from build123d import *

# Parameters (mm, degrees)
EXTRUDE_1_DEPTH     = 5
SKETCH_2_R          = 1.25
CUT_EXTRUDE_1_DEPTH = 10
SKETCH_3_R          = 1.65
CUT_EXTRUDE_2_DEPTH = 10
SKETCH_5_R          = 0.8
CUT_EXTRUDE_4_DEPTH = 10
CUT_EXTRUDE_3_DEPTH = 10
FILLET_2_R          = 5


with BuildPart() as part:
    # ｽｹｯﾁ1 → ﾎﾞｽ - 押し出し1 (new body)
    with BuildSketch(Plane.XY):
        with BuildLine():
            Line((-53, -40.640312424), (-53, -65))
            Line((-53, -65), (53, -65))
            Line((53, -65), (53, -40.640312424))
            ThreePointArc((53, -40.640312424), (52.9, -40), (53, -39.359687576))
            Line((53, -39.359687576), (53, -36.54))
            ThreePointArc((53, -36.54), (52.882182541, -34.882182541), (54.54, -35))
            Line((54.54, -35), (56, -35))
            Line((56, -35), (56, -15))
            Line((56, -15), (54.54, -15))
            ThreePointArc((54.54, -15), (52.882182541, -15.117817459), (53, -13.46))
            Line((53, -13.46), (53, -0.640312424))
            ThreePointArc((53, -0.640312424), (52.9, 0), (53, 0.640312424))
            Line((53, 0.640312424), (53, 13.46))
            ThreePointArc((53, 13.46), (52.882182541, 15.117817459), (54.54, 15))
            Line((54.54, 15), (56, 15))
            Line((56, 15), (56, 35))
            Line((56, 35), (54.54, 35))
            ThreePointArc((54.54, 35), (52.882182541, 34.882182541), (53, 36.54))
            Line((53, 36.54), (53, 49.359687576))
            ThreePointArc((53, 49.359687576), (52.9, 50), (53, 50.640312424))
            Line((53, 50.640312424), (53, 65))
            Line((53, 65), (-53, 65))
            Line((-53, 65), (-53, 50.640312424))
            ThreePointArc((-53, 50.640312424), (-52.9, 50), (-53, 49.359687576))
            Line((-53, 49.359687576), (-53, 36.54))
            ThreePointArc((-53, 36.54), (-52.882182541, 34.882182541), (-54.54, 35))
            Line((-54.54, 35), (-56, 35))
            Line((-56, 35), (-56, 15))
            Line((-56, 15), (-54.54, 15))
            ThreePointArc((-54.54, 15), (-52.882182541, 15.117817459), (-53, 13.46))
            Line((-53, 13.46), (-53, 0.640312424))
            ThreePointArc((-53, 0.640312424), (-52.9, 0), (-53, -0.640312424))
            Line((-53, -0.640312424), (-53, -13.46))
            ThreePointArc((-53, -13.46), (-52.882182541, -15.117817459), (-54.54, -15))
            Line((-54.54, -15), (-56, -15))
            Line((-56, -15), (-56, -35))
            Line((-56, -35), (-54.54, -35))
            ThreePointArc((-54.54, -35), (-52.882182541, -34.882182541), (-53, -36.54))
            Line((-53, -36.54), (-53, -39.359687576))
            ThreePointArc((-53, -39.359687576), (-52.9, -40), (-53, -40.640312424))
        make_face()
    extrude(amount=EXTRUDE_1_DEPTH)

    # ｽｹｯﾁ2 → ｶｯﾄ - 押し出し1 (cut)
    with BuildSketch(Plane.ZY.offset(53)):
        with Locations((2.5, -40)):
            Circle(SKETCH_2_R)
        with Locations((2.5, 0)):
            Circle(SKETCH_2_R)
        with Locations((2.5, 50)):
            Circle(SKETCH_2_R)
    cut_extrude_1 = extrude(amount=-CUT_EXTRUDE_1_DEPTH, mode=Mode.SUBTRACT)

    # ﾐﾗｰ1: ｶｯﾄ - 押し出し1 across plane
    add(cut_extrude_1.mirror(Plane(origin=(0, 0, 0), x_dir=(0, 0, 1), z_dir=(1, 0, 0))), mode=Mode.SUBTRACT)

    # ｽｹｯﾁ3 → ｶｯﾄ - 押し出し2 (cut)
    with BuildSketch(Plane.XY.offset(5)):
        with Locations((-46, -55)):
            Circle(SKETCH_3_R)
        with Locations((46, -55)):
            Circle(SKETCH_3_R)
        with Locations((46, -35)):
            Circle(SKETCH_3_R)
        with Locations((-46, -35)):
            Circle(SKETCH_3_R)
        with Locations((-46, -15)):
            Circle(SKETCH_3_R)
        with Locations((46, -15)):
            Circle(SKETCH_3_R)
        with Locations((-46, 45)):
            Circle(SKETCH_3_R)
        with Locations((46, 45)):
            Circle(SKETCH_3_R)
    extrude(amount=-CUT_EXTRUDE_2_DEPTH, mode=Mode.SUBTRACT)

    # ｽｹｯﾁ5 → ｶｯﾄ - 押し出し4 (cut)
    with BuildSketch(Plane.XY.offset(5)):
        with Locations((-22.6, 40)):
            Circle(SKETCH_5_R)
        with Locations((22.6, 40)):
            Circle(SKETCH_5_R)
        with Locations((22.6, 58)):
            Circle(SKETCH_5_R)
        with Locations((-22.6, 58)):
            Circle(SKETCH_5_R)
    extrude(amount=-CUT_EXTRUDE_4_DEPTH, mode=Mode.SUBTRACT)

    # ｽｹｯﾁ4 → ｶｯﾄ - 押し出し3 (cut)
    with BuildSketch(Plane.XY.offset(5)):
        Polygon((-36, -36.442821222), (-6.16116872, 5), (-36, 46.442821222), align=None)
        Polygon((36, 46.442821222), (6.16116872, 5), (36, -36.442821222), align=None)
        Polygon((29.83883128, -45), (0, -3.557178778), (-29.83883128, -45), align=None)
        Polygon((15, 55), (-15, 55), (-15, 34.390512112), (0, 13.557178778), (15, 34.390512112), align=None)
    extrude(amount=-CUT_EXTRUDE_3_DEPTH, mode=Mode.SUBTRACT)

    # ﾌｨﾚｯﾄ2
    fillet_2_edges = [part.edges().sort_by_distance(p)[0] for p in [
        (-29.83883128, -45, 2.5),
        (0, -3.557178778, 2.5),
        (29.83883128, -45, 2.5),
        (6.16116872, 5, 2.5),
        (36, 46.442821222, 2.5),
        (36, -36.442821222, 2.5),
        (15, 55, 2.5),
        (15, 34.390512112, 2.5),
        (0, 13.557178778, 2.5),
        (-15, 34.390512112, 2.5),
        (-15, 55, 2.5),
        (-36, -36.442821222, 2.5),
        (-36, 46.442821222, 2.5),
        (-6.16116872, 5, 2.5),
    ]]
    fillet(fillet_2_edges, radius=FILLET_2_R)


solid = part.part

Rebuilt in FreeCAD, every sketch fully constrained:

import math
import FreeCAD as App
import Part
import Sketcher

V = App.Vector


def edges_at(feature, points):
    """Names of the edges that pass closest to the given points."""
    edges = feature.Shape.Edges
    near = lambda p: min(range(len(edges)), key=lambda i: edges[i].distToShape(Part.Vertex(*p))[0])
    return sorted({f"Edge{near(p) + 1}" for p in points})


def add_polygon(sketch, points):
    """Adds a closed chain of lines whose ends are joined by coincident constraints."""
    first, n = sketch.GeometryCount, len(points)
    for a, b in zip(points, points[1:] + points[:1]):
        sketch.addGeometry(Part.LineSegment(App.Vector(*a, 0), App.Vector(*b, 0)), False)
    for i in range(n):
        sketch.addConstraint(Sketcher.Constraint("Coincident", first + i, 2, first + (i + 1) % n, 1))

doc = App.newDocument("Part")
body = doc.addObject("PartDesign::Body", "Body")

sketch1 = body.newObject("Sketcher::SketchObject", "Sketch")
sketch1.AttachmentSupport = (doc.getObject("XY_Plane"), [""])
sketch1.MapMode = "FlatFace"
sketch1.addGeometry([
    Part.LineSegment(V(-53, -40.6, 0), V(-53, -65, 0)),
    Part.LineSegment(V(-53, -65, 0), V(53, -65, 0)),
    Part.LineSegment(V(53, -65, 0), V(53, -40.6, 0)),
    Part.ArcOfCircle(Part.Circle(V(55, -40, 0), V(0, 0, 1), 2.1), math.radians(162), math.radians(198)),
    Part.LineSegment(V(53, -39.4, 0), V(53, -36.5, 0)),
    Part.ArcOfCircle(Part.Circle(V(53.7, -35.7, 0), V(0, 0, 1), 1.1), math.radians(37), math.radians(233)),
    Part.LineSegment(V(54.5, -35, 0), V(56, -35, 0)),
    Part.LineSegment(V(56, -35, 0), V(56, -15, 0)),
    Part.LineSegment(V(56, -15, 0), V(54.5, -15, 0)),
    Part.ArcOfCircle(Part.Circle(V(53.7, -14.3, 0), V(0, 0, 1), 1.1), math.radians(127), math.radians(323)),
    Part.LineSegment(V(53, -13.5, 0), V(53, -0.6, 0)),
    Part.ArcOfCircle(Part.Circle(V(55, 0, 0), V(0, 0, 1), 2.1), math.radians(162), math.radians(198)),
    Part.LineSegment(V(53, 0.6, 0), V(53, 13.5, 0)),
    Part.ArcOfCircle(Part.Circle(V(53.7, 14.3, 0), V(0, 0, 1), 1.1), math.radians(37), math.radians(233)),
    Part.LineSegment(V(54.5, 15, 0), V(56, 15, 0)),
    Part.LineSegment(V(56, 15, 0), V(56, 35, 0)),
    Part.LineSegment(V(56, 35, 0), V(54.5, 35, 0)),
    Part.ArcOfCircle(Part.Circle(V(53.7, 35.7, 0), V(0, 0, 1), 1.1), math.radians(127), math.radians(323)),
    Part.LineSegment(V(53, 36.5, 0), V(53, 49.4, 0)),
    Part.ArcOfCircle(Part.Circle(V(55, 50, 0), V(0, 0, 1), 2.1), math.radians(162), math.radians(198)),
    Part.LineSegment(V(53, 50.6, 0), V(53, 65, 0)),
    Part.LineSegment(V(53, 65, 0), V(-53, 65, 0)),
    Part.LineSegment(V(-53, 65, 0), V(-53, 50.6, 0)),
    Part.ArcOfCircle(Part.Circle(V(-55, 50, 0), V(0, 0, 1), 2.1), math.radians(-18), math.radians(18)),
    Part.LineSegment(V(-53, 49.4, 0), V(-53, 36.5, 0)),
    Part.ArcOfCircle(Part.Circle(V(-53.7, 35.7, 0), V(0, 0, 1), 1.1), math.radians(-143), math.radians(53)),
    Part.LineSegment(V(-54.5, 35, 0), V(-56, 35, 0)),
    Part.LineSegment(V(-56, 35, 0), V(-56, 15, 0)),
    Part.LineSegment(V(-56, 15, 0), V(-54.5, 15, 0)),
    Part.ArcOfCircle(Part.Circle(V(-53.7, 14.3, 0), V(0, 0, 1), 1.1), math.radians(-53), math.radians(143)),
    Part.LineSegment(V(-53, 13.5, 0), V(-53, 0.6, 0)),
    Part.ArcOfCircle(Part.Circle(V(-55, 0, 0), V(0, 0, 1), 2.1), math.radians(-18), math.radians(18)),
    Part.LineSegment(V(-53, -0.6, 0), V(-53, -13.5, 0)),
    Part.ArcOfCircle(Part.Circle(V(-53.7, -14.3, 0), V(0, 0, 1), 1.1), math.radians(-143), math.radians(53)),
    Part.LineSegment(V(-54.5, -15, 0), V(-56, -15, 0)),
    Part.LineSegment(V(-56, -15, 0), V(-56, -35, 0)),
    Part.LineSegment(V(-56, -35, 0), V(-54.5, -35, 0)),
    Part.ArcOfCircle(Part.Circle(V(-53.7, -35.7, 0), V(0, 0, 1), 1.1), math.radians(-53), math.radians(143)),
    Part.LineSegment(V(-53, -36.5, 0), V(-53, -39.4, 0)),
    Part.ArcOfCircle(Part.Circle(V(-55, -40, 0), V(0, 0, 1), 2.1), math.radians(-18), math.radians(18)),
], False)
sketch1.addConstraint([
    Sketcher.Constraint("Coincident", 0, 2, 1, 1),
    Sketcher.Constraint("Coincident", 1, 2, 2, 1),
    Sketcher.Constraint("Coincident", 2, 2, 3, 2),
    Sketcher.Constraint("Coincident", 3, 1, 4, 1),
    Sketcher.Constraint("Coincident", 4, 2, 5, 2),
    Sketcher.Constraint("Coincident", 5, 1, 6, 1),
    Sketcher.Constraint("Coincident", 6, 2, 7, 1),
    Sketcher.Constraint("Coincident", 7, 2, 8, 1),
    Sketcher.Constraint("Coincident", 8, 2, 9, 2),
    Sketcher.Constraint("Coincident", 9, 1, 10, 1),
    Sketcher.Constraint("Coincident", 10, 2, 11, 2),
    Sketcher.Constraint("Coincident", 11, 1, 12, 1),
    Sketcher.Constraint("Coincident", 12, 2, 13, 2),
    Sketcher.Constraint("Coincident", 13, 1, 14, 1),
    Sketcher.Constraint("Coincident", 14, 2, 15, 1),
    Sketcher.Constraint("Coincident", 15, 2, 16, 1),
    Sketcher.Constraint("Coincident", 16, 2, 17, 2),
    Sketcher.Constraint("Coincident", 17, 1, 18, 1),
    Sketcher.Constraint("Coincident", 18, 2, 19, 2),
    Sketcher.Constraint("Coincident", 19, 1, 20, 1),
    Sketcher.Constraint("Coincident", 20, 2, 21, 1),
    Sketcher.Constraint("Coincident", 21, 2, 22, 1),
    Sketcher.Constraint("Coincident", 22, 2, 23, 2),
    Sketcher.Constraint("Coincident", 23, 1, 24, 1),
    Sketcher.Constraint("Coincident", 24, 2, 25, 2),
    Sketcher.Constraint("Coincident", 25, 1, 26, 1),
    Sketcher.Constraint("Coincident", 26, 2, 27, 1),
    Sketcher.Constraint("Coincident", 27, 2, 28, 1),
    Sketcher.Constraint("Coincident", 28, 2, 29, 2),
    Sketcher.Constraint("Coincident", 29, 1, 30, 1),
    Sketcher.Constraint("Coincident", 30, 2, 31, 2),
    Sketcher.Constraint("Coincident", 31, 1, 32, 1),
    Sketcher.Constraint("Coincident", 32, 2, 33, 2),
    Sketcher.Constraint("Coincident", 33, 1, 34, 1),
    Sketcher.Constraint("Coincident", 34, 2, 35, 1),
    Sketcher.Constraint("Coincident", 35, 2, 36, 1),
    Sketcher.Constraint("Coincident", 36, 2, 37, 2),
    Sketcher.Constraint("Coincident", 37, 1, 38, 1),
    Sketcher.Constraint("Coincident", 38, 2, 39, 2),
    Sketcher.Constraint("Coincident", 39, 1, 0, 1),
    Sketcher.Constraint("Vertical", 0),
    Sketcher.Constraint("Horizontal", 1),
    Sketcher.Constraint("Vertical", 2),
    Sketcher.Constraint("Vertical", 4),
    Sketcher.Constraint("Horizontal", 6),
    Sketcher.Constraint("Vertical", 7),
    Sketcher.Constraint("Horizontal", 8),
    Sketcher.Constraint("Vertical", 10),
    Sketcher.Constraint("Vertical", 12),
    Sketcher.Constraint("Horizontal", 14),
    Sketcher.Constraint("Vertical", 15),
    Sketcher.Constraint("Horizontal", 16),
    Sketcher.Constraint("Vertical", 18),
    Sketcher.Constraint("Vertical", 20),
    Sketcher.Constraint("Horizontal", 21),
    Sketcher.Constraint("Vertical", 22),
    Sketcher.Constraint("Vertical", 24),
    Sketcher.Constraint("Horizontal", 26),
    Sketcher.Constraint("Vertical", 27),
    Sketcher.Constraint("Horizontal", 28),
    Sketcher.Constraint("Vertical", 30),
    Sketcher.Constraint("Vertical", 32),
    Sketcher.Constraint("Horizontal", 34),
    Sketcher.Constraint("Vertical", 35),
    Sketcher.Constraint("Horizontal", 36),
    Sketcher.Constraint("Vertical", 38),
    Sketcher.Constraint("Equal", 5, 9),
    Sketcher.Constraint("Equal", 3, 11),
    Sketcher.Constraint("Equal", 9, 13),
    Sketcher.Constraint("Equal", 13, 17),
    Sketcher.Constraint("Equal", 11, 19),
    Sketcher.Constraint("Equal", 19, 23),
    Sketcher.Constraint("Equal", 17, 25),
    Sketcher.Constraint("Equal", 25, 29),
    Sketcher.Constraint("Equal", 23, 31),
    Sketcher.Constraint("Equal", 29, 33),
    Sketcher.Constraint("Equal", 33, 37),
    Sketcher.Constraint("Equal", 31, 39),
    Sketcher.Constraint("Symmetric", 5, 3, 25, 3, -1, 1),
    Sketcher.Constraint("Symmetric", 9, 3, 29, 3, -1, 1),
    Sketcher.Constraint("Symmetric", 11, 3, 31, 3, -1, 1),
    Sketcher.Constraint("Symmetric", 13, 3, 33, 3, -1, 1),
    Sketcher.Constraint("Symmetric", 17, 3, 37, 3, -1, 1),
    Sketcher.Constraint("Symmetric", 0, 2, 20, 2, -1, 1),
    Sketcher.Constraint("Symmetric", 6, 2, 26, 2, -1, 1),
    Sketcher.Constraint("Symmetric", 14, 2, 34, 2, -1, 1),
    Sketcher.Constraint("Symmetric", 19, 3, 23, 3, -2),
    Sketcher.Constraint("Symmetric", 17, 3, 25, 3, -2),
    Sketcher.Constraint("Symmetric", 13, 3, 29, 3, -2),
    Sketcher.Constraint("Symmetric", 3, 3, 39, 3, -2),
    Sketcher.Constraint("Symmetric", 15, 2, 26, 2, -2),
    Sketcher.Constraint("Symmetric", 11, 1, 30, 2, -2),
    Sketcher.Constraint("Horizontal", 19, 1, 22, 2),
    Sketcher.Constraint("Horizontal", 18, 2, 23, 1),
    Sketcher.Constraint("Horizontal", 14, 2, 27, 2),
    Sketcher.Constraint("Horizontal", 10, 2, 31, 1),
    Sketcher.Constraint("Horizontal", 8, 2, 33, 1),
    Sketcher.Constraint("Horizontal", 6, 2, 35, 2),
    Sketcher.Constraint("Horizontal", 4, 2, 37, 1),
    Sketcher.Constraint("Horizontal", 2, 2, 39, 1),
    Sketcher.Constraint("Vertical", 5, 3, 9, 3),
    Sketcher.Constraint("Vertical", 3, 3, 11, 3),
    Sketcher.Constraint("Vertical", 11, 3, 19, 3),
    Sketcher.Constraint("Vertical", 2, 2, 3, 1),
    Sketcher.Constraint("Vertical", 5, 1, 8, 2),
    Sketcher.Constraint("Vertical", 4, 2, 9, 1),
    Sketcher.Constraint("Vertical", 10, 2, 11, 1),
    Sketcher.Constraint("Vertical", 12, 2, 17, 1),
    Sketcher.Constraint("Equal", 12, 18),
    Sketcher.Constraint("Radius", 3, 2.1),
    Sketcher.Constraint("Radius", 5, 1.1),
    Sketcher.Constraint("DistanceX", 1, 1, 1, 2, 106.0),
    Sketcher.Constraint("DistanceY", 7, 1, 7, 2, 20.0),
    Sketcher.Constraint("DistanceX", -1, 1, 3, 3, 55.0),
    Sketcher.Constraint("DistanceY", 3, 3, -1, 1, 40.0),
    Sketcher.Constraint("DistanceY", -1, 1, 19, 3, 50.0),
    Sketcher.Constraint("DistanceY", 0, 2, -1, 1, 65.0),
    Sketcher.Constraint("DistanceX", -1, 1, 6, 2, 56.0),
    Sketcher.Constraint("DistanceX", 6, 1, 6, 2, 1.46),
    Sketcher.Constraint("DistanceY", 4, 2, 9, 3, 22.2),
])
pad1 = body.newObject("PartDesign::Pad", "Pad")
pad1.Profile = sketch1
pad1.Length = 5

sketch2 = body.newObject("Sketcher::SketchObject", "Sketch001")
sketch2.AttachmentSupport = (doc.getObject("YZ_Plane"), [""])
sketch2.MapMode = "FlatFace"
sketch2.AttachmentOffset = App.Placement(V(0, 0, -53), App.Rotation())
sketch2.addGeometry([
    Part.Circle(V(-40, 2.5, 0), V(0, 0, 1), 1.2),
    Part.Circle(V(0, 2.5, 0), V(0, 0, 1), 1.2),
    Part.Circle(V(50, 2.5, 0), V(0, 0, 1), 1.2),
], False)
sketch2.addConstraint([
    Sketcher.Constraint("Equal", 0, 1),
    Sketcher.Constraint("Equal", 1, 2),
    Sketcher.Constraint("PointOnObject", 1, 3, -2),
    Sketcher.Constraint("Horizontal", 0, 3, 1, 3),
    Sketcher.Constraint("Horizontal", 1, 3, 2, 3),
    Sketcher.Constraint("Diameter", 0, 2.5),
    Sketcher.Constraint("DistanceX", 0, 3, -1, 1, 40.0),
    Sketcher.Constraint("DistanceX", -1, 1, 2, 3, 50.0),
    Sketcher.Constraint("DistanceY", -1, 1, 0, 3, 2.5),
])
pocket1 = body.newObject("PartDesign::Pocket", "Pocket")
pocket1.Profile = sketch2
pocket1.Length = 10
pocket1.Reversed = True
doc.recompute()

mirrored = body.newObject("PartDesign::Mirrored", "Mirrored")
mirrored.Originals = [pocket1]
mirrored.MirrorPlane = (doc.getObject("YZ_Plane"), [""])
body.Tip = mirrored

sketch3 = body.newObject("Sketcher::SketchObject", "Sketch002")
sketch3.AttachmentSupport = (doc.getObject("XY_Plane"), [""])
sketch3.MapMode = "FlatFace"
sketch3.AttachmentOffset = App.Placement(V(0, 0, 5), App.Rotation())
sketch3.addGeometry([
    Part.Circle(V(-46, -55, 0), V(0, 0, 1), 1.6),
    Part.Circle(V(46, -55, 0), V(0, 0, 1), 1.6),
    Part.Circle(V(46, -35, 0), V(0, 0, 1), 1.6),
    Part.Circle(V(-46, -35, 0), V(0, 0, 1), 1.6),
    Part.Circle(V(-46, -15, 0), V(0, 0, 1), 1.6),
    Part.Circle(V(46, -15, 0), V(0, 0, 1), 1.6),
    Part.Circle(V(-46, 45, 0), V(0, 0, 1), 1.6),
    Part.Circle(V(46, 45, 0), V(0, 0, 1), 1.6),
], False)
sketch3.addConstraint([
    Sketcher.Constraint("Equal", 0, 1),
    Sketcher.Constraint("Equal", 1, 2),
    Sketcher.Constraint("Equal", 2, 3),
    Sketcher.Constraint("Equal", 3, 4),
    Sketcher.Constraint("Equal", 4, 5),
    Sketcher.Constraint("Equal", 5, 6),
    Sketcher.Constraint("Equal", 6, 7),
    Sketcher.Constraint("Symmetric", 0, 3, 1, 3, -2),
    Sketcher.Constraint("Symmetric", 2, 3, 3, 3, -2),
    Sketcher.Constraint("Symmetric", 4, 3, 5, 3, -2),
    Sketcher.Constraint("Symmetric", 6, 3, 7, 3, -2),
    Sketcher.Constraint("Vertical", 1, 3, 2, 3),
    Sketcher.Constraint("Vertical", 3, 3, 4, 3),
    Sketcher.Constraint("Vertical", 4, 3, 6, 3),
    Sketcher.Constraint("Diameter", 0, 3.3),
    Sketcher.Constraint("DistanceX", 0, 3, -1, 1, 46.0),
    Sketcher.Constraint("DistanceY", 0, 3, -1, 1, 55.0),
    Sketcher.Constraint("DistanceY", 2, 3, -1, 1, 35.0),
    Sketcher.Constraint("DistanceY", 4, 3, -1, 1, 15.0),
    Sketcher.Constraint("DistanceY", -1, 1, 6, 3, 45.0),
])
pocket2 = body.newObject("PartDesign::Pocket", "Pocket001")
pocket2.Profile = sketch3
pocket2.Length = 10

sketch4 = body.newObject("Sketcher::SketchObject", "Sketch003")
sketch4.AttachmentSupport = (doc.getObject("XY_Plane"), [""])
sketch4.MapMode = "FlatFace"
sketch4.AttachmentOffset = App.Placement(V(0, 0, 5), App.Rotation())
sketch4.addGeometry([
    Part.Circle(V(-22.6, 40, 0), V(0, 0, 1), 0.8),
    Part.Circle(V(22.6, 40, 0), V(0, 0, 1), 0.8),
    Part.Circle(V(22.6, 58, 0), V(0, 0, 1), 0.8),
    Part.Circle(V(-22.6, 58, 0), V(0, 0, 1), 0.8),
], False)
sketch4.addConstraint([
    Sketcher.Constraint("Equal", 0, 1),
    Sketcher.Constraint("Equal", 1, 2),
    Sketcher.Constraint("Equal", 2, 3),
    Sketcher.Constraint("Symmetric", 0, 3, 1, 3, -2),
    Sketcher.Constraint("Symmetric", 2, 3, 3, 3, -2),
    Sketcher.Constraint("Vertical", 1, 3, 2, 3),
    Sketcher.Constraint("Diameter", 0, 1.6),
    Sketcher.Constraint("DistanceY", -1, 1, 0, 3, 40.0),
    Sketcher.Constraint("DistanceY", -1, 1, 2, 3, 58.0),
    Sketcher.Constraint("DistanceX", 0, 3, -1, 1, 22.6),
])
pocket3 = body.newObject("PartDesign::Pocket", "Pocket002")
pocket3.Profile = sketch4
pocket3.Length = 10

sketch5 = body.newObject("Sketcher::SketchObject", "Sketch004")
sketch5.AttachmentSupport = (doc.getObject("XY_Plane"), [""])
sketch5.MapMode = "FlatFace"
sketch5.AttachmentOffset = App.Placement(V(0, 0, 5), App.Rotation())
add_polygon(sketch5, [(-36, -36), (-6, 5), (-36, 46)])
add_polygon(sketch5, [(36, 46), (6, 5), (36, -36)])
add_polygon(sketch5, [(30, -45), (0, -4), (-30, -45)])
add_polygon(sketch5, [(15, 55), (-15, 55), (-15, 34), (0, 14), (15, 34)])
sketch5.addConstraint([
    Sketcher.Constraint("Vertical", 2),
    Sketcher.Constraint("Vertical", 5),
    Sketcher.Constraint("Horizontal", 8),
    Sketcher.Constraint("Horizontal", 9),
    Sketcher.Constraint("Vertical", 10),
    Sketcher.Constraint("Vertical", 13),
    Sketcher.Constraint("Symmetric", 0, 2, 3, 2, -2),
    Sketcher.Constraint("Symmetric", 2, 2, 4, 2, -2),
    Sketcher.Constraint("Symmetric", 10, 2, 12, 2, -2),
    Sketcher.Constraint("PointOnObject", 6, 2, -2),
    Sketcher.Constraint("PointOnObject", 11, 2, -2),
    Sketcher.Constraint("Parallel", 0, 3),
    Sketcher.Constraint("Parallel", 1, 4),
    Sketcher.Constraint("Parallel", 4, 6),
    Sketcher.Constraint("Parallel", 3, 7),
    Sketcher.Constraint("Parallel", 6, 11),
    Sketcher.Constraint("Equal", 4, 6),
    Sketcher.Constraint("DistanceX", 9, 2, 9, 1, 30.0),
    Sketcher.Constraint("DistanceY", -1, 1, 0, 2, 5.0),
    Sketcher.Constraint("DistanceX", 1, 2, -1, 1, 36.0),
    Sketcher.Constraint("DistanceY", 7, 2, -1, 1, 45.0),
    Sketcher.Constraint("DistanceY", -1, 1, 9, 2, 55.0),
    Sketcher.Constraint("DistanceX", 8, 1, 8, 2, 59.677663),
    Sketcher.Constraint("DistanceY", 2, 2, 2, 1, 82.885642),
    Sketcher.Constraint("DistanceY", 10, 2, 10, 1, 20.609488),
])
pocket4 = body.newObject("PartDesign::Pocket", "Pocket003")
pocket4.Profile = sketch5
pocket4.Length = 10
doc.recompute()

fillet = body.newObject("PartDesign::Fillet", "Fillet")
fillet.Base = (pocket4, edges_at(pocket4, [
    (-29.839, -45, 2.5),
    (0, -3.557, 2.5),
    (29.839, -45, 2.5),
    (6.161, 5, 2.5),
    (36, 46.443, 2.5),
    (36, -36.443, 2.5),
    (15, 55, 2.5),
    (15, 34.391, 2.5),
    (0, 13.557, 2.5),
    (-15, 34.391, 2.5),
    (-15, 55, 2.5),
    (-36, -36.443, 2.5),
    (-36, 46.443, 2.5),
    (-6.161, 5, 2.5),
]))
fillet.Radius = 5

doc.recompute()
